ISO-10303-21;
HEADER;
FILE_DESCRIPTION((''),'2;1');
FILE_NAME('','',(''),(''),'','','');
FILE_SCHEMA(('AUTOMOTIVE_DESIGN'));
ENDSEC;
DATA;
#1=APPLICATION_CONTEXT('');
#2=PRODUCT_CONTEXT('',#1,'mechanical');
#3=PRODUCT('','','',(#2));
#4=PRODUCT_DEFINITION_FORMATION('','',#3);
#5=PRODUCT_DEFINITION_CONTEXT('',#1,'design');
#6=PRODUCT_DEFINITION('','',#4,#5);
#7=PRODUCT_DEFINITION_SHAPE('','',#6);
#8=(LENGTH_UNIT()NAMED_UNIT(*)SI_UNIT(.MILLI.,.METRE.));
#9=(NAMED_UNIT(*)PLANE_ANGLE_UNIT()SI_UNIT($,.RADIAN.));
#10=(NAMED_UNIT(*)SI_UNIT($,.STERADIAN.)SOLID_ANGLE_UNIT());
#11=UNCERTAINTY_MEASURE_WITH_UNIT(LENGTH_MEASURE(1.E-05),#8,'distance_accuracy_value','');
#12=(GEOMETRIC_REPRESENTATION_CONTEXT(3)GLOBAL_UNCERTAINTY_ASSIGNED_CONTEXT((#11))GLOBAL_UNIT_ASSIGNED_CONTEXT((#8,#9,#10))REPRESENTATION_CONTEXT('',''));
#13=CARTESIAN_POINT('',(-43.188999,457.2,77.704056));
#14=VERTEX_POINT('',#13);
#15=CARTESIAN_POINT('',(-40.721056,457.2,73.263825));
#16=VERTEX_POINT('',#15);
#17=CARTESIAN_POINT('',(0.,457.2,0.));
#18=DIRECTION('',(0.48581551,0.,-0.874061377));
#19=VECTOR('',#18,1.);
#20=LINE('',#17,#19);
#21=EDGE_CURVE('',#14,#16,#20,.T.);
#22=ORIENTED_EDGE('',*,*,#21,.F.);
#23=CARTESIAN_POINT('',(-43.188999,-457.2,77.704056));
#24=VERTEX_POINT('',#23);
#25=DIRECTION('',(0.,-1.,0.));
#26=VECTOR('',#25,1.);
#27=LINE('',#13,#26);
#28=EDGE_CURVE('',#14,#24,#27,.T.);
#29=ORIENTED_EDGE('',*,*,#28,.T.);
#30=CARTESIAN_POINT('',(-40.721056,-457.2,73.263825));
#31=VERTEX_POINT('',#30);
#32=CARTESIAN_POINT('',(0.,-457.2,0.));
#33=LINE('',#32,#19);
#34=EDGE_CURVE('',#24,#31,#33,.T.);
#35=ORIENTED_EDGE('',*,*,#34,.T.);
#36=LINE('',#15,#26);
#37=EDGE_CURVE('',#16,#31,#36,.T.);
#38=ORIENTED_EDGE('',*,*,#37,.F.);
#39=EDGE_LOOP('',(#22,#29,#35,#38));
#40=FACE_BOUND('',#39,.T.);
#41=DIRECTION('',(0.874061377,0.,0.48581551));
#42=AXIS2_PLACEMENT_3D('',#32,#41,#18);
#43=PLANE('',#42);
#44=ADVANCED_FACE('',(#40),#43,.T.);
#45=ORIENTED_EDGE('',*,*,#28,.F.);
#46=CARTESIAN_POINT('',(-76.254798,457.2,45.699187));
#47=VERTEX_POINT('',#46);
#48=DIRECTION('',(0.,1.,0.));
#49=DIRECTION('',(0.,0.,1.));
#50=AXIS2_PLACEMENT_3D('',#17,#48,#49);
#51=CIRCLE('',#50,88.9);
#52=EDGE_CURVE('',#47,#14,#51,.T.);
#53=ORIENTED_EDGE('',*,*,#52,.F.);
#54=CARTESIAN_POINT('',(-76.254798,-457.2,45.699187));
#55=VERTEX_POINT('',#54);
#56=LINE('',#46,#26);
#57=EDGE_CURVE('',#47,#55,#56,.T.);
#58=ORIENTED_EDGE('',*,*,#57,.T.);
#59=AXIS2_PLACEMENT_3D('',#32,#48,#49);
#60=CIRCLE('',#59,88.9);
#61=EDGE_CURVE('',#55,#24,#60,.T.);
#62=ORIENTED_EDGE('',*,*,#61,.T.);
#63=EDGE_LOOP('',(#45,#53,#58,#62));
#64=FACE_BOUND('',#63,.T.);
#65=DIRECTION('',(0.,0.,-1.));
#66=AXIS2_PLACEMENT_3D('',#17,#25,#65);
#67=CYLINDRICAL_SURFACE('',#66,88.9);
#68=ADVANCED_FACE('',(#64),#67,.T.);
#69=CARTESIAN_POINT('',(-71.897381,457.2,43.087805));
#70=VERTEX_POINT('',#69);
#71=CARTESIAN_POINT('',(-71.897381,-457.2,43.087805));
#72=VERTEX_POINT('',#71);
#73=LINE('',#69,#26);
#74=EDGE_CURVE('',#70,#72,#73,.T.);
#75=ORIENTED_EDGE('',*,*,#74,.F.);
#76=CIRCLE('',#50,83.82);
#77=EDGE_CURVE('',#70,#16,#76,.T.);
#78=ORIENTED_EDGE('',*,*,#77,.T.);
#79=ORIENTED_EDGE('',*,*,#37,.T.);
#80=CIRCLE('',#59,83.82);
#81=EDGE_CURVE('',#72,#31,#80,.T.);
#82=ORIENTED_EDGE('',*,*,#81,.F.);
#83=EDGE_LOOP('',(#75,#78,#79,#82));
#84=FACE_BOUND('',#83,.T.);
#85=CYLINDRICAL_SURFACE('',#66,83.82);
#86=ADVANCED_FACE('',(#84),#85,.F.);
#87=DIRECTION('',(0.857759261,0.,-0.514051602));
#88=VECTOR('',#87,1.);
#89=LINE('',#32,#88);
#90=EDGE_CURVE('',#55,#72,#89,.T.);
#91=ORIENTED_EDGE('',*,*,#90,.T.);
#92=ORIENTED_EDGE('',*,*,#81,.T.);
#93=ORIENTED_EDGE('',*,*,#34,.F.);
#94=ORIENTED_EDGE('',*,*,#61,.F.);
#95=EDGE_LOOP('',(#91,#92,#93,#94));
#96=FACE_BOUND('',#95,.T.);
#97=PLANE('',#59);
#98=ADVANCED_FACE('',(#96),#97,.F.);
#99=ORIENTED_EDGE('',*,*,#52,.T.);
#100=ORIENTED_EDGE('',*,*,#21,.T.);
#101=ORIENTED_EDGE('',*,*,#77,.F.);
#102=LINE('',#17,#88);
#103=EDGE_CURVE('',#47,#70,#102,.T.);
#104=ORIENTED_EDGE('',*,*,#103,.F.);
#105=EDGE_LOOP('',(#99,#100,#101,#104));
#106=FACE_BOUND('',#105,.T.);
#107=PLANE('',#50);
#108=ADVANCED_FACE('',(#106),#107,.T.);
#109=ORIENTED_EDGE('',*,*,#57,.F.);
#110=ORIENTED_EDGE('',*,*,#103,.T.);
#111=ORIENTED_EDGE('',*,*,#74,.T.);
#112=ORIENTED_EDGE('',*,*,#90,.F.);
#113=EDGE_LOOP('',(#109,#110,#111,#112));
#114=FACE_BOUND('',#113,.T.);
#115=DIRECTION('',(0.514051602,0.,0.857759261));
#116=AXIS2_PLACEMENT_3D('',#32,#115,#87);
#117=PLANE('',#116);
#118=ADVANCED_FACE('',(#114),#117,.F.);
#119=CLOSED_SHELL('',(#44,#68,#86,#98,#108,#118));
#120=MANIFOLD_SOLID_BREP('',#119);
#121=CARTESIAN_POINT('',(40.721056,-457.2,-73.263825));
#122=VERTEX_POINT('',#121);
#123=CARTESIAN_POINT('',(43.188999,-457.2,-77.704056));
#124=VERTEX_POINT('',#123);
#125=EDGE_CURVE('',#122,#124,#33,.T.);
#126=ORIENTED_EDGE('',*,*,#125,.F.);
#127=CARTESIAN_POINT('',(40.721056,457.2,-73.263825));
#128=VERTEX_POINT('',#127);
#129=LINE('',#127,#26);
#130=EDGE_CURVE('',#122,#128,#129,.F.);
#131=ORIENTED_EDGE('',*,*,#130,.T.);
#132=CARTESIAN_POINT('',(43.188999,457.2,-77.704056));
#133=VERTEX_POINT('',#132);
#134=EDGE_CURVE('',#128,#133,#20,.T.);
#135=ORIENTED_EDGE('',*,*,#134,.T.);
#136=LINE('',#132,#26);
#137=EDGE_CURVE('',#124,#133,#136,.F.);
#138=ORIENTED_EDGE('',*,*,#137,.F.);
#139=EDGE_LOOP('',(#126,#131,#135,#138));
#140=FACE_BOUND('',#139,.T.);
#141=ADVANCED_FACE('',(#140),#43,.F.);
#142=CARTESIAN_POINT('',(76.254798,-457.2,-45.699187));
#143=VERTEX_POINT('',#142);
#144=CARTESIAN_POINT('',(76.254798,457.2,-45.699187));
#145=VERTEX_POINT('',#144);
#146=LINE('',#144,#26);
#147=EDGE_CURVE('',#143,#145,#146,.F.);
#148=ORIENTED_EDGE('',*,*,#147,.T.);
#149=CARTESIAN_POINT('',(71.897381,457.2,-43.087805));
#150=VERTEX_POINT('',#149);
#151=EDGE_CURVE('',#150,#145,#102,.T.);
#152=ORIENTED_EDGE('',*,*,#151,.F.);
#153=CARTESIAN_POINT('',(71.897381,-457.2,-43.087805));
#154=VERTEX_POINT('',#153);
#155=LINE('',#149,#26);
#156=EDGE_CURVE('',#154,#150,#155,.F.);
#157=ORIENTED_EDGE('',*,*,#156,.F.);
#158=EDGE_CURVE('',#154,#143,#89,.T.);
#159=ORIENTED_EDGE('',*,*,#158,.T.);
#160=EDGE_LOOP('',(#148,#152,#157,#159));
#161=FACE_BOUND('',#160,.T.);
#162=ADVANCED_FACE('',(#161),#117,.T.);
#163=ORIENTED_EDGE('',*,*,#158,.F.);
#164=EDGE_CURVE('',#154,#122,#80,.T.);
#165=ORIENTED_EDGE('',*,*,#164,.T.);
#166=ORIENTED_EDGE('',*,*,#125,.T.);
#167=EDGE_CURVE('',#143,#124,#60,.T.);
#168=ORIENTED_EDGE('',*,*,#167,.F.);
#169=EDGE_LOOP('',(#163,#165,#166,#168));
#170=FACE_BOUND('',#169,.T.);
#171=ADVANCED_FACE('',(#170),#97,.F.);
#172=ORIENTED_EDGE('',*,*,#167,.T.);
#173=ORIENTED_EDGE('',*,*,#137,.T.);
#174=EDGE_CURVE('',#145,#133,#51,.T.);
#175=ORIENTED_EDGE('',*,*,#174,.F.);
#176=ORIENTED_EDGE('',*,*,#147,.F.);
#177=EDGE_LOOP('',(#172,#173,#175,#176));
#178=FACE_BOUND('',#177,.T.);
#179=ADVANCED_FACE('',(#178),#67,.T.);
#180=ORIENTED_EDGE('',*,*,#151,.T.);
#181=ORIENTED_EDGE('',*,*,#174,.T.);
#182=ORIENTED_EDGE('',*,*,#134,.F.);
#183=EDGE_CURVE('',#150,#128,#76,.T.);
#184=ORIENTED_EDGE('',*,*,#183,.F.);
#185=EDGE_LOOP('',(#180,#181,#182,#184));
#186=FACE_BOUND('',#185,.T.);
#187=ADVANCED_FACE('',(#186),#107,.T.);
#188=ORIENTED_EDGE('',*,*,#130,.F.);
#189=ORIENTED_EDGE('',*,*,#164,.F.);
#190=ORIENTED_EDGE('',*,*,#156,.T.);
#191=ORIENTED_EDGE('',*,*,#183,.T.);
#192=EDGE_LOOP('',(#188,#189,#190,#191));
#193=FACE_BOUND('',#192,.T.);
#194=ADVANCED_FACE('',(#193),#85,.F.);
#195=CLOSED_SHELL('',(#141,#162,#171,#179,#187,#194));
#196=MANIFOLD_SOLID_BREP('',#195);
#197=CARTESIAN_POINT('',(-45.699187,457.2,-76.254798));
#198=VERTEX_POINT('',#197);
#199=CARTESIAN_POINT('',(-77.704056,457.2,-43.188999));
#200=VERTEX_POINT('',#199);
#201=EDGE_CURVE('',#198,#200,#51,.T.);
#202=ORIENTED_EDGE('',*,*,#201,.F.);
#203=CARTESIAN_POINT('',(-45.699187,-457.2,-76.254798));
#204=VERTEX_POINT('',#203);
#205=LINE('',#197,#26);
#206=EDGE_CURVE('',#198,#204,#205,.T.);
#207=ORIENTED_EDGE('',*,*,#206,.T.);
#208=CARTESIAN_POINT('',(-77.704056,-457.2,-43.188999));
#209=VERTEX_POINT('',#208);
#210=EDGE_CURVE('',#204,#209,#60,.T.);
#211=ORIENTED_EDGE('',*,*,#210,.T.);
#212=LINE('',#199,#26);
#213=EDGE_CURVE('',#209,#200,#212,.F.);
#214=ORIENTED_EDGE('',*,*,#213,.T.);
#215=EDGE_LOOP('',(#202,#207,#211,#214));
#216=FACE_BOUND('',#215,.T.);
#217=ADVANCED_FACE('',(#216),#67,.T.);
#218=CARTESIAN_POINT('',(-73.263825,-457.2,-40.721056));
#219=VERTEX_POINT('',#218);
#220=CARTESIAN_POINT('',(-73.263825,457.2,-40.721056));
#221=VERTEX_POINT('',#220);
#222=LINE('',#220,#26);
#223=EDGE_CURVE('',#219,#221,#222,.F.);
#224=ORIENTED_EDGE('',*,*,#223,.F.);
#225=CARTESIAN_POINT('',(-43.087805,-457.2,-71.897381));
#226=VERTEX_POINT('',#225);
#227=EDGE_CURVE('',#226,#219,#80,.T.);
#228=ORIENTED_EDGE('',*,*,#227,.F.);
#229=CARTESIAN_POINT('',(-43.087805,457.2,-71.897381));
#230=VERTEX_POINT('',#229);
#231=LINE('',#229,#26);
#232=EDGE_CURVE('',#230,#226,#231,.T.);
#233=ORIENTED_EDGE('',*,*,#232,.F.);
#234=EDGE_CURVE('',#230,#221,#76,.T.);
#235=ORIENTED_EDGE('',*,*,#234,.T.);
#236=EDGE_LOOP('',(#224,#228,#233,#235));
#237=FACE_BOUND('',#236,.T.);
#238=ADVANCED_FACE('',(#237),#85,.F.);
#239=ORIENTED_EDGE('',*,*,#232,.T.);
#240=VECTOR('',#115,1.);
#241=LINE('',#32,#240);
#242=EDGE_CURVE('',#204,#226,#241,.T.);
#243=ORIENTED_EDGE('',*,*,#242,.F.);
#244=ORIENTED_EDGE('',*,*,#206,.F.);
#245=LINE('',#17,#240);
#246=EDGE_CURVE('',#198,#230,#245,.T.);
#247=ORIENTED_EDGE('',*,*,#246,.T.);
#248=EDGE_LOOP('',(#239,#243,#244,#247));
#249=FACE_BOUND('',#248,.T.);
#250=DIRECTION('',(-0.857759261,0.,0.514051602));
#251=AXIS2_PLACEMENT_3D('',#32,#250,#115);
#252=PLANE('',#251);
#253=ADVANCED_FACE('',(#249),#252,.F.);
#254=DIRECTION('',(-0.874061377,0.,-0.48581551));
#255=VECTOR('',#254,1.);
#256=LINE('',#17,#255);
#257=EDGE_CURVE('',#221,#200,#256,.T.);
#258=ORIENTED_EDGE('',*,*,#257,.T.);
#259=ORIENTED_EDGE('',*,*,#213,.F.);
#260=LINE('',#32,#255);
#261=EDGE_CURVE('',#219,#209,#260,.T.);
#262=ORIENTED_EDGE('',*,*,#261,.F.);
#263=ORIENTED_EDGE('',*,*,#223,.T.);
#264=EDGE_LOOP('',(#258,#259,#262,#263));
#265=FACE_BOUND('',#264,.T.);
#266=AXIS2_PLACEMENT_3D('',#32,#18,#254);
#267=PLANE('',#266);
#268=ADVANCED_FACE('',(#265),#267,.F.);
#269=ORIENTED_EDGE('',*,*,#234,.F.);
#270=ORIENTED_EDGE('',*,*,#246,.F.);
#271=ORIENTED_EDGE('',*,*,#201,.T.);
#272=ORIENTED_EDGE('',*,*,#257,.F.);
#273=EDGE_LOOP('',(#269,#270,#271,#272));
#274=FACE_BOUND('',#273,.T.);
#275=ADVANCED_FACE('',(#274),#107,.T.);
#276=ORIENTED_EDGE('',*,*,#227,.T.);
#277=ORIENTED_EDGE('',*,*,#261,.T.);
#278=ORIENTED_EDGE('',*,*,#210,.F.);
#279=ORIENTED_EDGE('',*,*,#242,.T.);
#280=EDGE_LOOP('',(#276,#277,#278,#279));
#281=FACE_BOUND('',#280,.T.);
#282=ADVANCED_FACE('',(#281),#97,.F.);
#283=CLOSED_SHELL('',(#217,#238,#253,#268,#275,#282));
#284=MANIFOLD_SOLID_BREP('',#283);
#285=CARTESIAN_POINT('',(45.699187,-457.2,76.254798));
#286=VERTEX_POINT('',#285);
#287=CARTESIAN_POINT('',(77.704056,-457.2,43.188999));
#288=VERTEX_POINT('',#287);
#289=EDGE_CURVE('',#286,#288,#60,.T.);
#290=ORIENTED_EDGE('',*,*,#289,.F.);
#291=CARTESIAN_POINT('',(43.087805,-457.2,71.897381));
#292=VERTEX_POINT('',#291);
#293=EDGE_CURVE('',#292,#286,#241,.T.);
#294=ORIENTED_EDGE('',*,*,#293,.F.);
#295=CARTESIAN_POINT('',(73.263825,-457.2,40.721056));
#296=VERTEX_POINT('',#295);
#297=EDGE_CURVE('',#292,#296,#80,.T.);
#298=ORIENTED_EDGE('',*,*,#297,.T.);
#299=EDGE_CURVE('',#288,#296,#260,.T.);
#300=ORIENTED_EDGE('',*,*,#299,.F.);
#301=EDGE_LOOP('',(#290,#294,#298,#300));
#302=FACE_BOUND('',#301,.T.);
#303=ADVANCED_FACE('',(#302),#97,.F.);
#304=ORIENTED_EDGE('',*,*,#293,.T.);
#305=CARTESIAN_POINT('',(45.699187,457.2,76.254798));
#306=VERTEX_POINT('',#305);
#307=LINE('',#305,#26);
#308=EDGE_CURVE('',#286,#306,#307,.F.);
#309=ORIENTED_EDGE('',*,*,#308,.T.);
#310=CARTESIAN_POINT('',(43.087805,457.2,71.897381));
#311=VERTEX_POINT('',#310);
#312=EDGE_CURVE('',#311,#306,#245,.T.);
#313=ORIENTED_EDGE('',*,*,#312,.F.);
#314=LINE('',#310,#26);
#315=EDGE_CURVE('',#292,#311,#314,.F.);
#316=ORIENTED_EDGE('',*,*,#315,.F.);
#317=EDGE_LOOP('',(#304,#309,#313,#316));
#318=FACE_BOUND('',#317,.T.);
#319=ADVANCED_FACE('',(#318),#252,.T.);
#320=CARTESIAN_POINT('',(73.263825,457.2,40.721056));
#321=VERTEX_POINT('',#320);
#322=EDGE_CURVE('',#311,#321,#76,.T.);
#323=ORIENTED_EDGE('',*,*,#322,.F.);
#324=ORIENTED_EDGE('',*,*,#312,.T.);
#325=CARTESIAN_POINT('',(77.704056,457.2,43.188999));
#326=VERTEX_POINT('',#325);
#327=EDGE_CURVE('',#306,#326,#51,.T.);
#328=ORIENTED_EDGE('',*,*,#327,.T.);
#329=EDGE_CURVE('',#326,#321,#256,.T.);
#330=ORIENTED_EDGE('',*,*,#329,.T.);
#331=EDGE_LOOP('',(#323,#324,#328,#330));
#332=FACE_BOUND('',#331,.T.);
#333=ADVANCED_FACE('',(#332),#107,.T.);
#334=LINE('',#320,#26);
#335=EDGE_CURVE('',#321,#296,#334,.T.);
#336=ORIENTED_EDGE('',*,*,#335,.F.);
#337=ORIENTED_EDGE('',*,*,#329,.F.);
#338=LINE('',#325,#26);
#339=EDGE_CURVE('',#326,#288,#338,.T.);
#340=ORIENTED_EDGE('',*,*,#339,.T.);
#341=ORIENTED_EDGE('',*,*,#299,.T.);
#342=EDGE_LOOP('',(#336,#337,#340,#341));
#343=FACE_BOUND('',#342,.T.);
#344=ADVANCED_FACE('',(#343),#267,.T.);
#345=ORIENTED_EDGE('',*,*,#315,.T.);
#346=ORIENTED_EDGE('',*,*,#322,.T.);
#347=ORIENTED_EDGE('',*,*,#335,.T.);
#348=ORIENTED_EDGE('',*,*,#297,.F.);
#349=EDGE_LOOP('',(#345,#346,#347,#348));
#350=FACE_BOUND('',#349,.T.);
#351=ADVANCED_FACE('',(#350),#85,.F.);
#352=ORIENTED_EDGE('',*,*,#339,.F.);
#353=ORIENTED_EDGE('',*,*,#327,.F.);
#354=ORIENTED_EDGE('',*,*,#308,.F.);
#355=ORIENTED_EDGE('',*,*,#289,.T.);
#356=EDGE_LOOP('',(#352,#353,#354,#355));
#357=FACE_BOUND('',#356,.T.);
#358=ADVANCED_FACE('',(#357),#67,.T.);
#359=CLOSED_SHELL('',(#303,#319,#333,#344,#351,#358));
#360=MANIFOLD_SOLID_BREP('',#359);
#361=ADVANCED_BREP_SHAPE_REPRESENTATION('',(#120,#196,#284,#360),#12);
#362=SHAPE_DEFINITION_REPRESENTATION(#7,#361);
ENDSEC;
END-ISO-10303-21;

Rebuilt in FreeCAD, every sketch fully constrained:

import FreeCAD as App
import Part
import Sketcher

V = App.Vector
Q = App.Units.Quantity

doc = App.newDocument("Part")
body = doc.addObject("PartDesign::Body", "Body")
body.AllowCompound = True

sketch1 = body.newObject("Sketcher::SketchObject", "Sketch")
sketch1.AttachmentSupport = (doc.getObject("XZ_Plane"), [""])
sketch1.MapMode = "FlatFace"
sketch1.addGeometry([
    Part.Circle(V(0, 0, 0), V(0, 0, 1), 89),
    Part.Circle(V(0, 0, 0), V(0, 0, 1), 84),
], False)
sketch1.addConstraint([
    Sketcher.Constraint("Coincident", 0, 3, -1, 1),
    Sketcher.Constraint("Coincident", 1, 3, -1, 1),
    Sketcher.Constraint("Diameter", 0, Q("7 in")),
    Sketcher.Constraint("Diameter", 1, Q("6.6 in")),
])
pad1 = body.newObject("PartDesign::Pad", "Pad")
pad1.Profile = sketch1
pad1.Length = Q("36 in")
pad1.Midplane = True

sketch2 = body.newObject("Sketcher::SketchObject", "Sketch001")
sketch2.AttachmentSupport = (doc.getObject("XZ_Plane"), [""])
sketch2.MapMode = "FlatFace"
sketch2.addGeometry([
    Part.LineSegment(V(0, 0, 0), V(170, 94, 0)),
    Part.LineSegment(V(170, 94, 0), V(170, -102, 0)),
    Part.LineSegment(V(170, -102, 0), V(0, 0, 0)),
    Part.LineSegment(V(0, 0, 0), V(54, -97, 0)),
    Part.LineSegment(V(54, -97, 0), V(-58, -97, 0)),
    Part.LineSegment(V(-58, -97, 0), V(0, 0, 0)),
    Part.LineSegment(V(-124, -69, 0), V(-124, 74, 0)),
    Part.LineSegment(V(-124, 74, 0), V(0, 0, 0)),
    Part.LineSegment(V(0, 0, 0), V(-124, -69, 0)),
    Part.LineSegment(V(0, 0, 0), V(-66, 118, 0)),
    Part.LineSegment(V(-66, 118, 0), V(71, 118, 0)),
    Part.LineSegment(V(71, 118, 0), V(0, 0, 0)),
], False)
sketch2.addConstraint([
    Sketcher.Constraint("Coincident", 0, 2, 1, 1),
    Sketcher.Constraint("Coincident", 1, 2, 2, 1),
    Sketcher.Constraint("Coincident", 2, 2, 0, 1),
    Sketcher.Constraint("Coincident", 3, 2, 4, 1),
    Sketcher.Constraint("Coincident", 4, 2, 5, 1),
    Sketcher.Constraint("Coincident", 5, 2, 3, 1),
    Sketcher.Constraint("Coincident", 6, 2, 7, 1),
    Sketcher.Constraint("Coincident", 7, 2, 8, 1),
    Sketcher.Constraint("Coincident", 8, 2, 6, 1),
    Sketcher.Constraint("Coincident", 9, 2, 10, 1),
    Sketcher.Constraint("Coincident", 10, 2, 11, 1),
    Sketcher.Constraint("Coincident", 11, 2, 9, 1),
    Sketcher.Constraint("Vertical", 1),
    Sketcher.Constraint("Horizontal", 4),
    Sketcher.Constraint("Vertical", 6),
    Sketcher.Constraint("Horizontal", 10),
    Sketcher.Constraint("Coincident", 2, 2, -1, 1),
    Sketcher.Constraint("Coincident", 5, 2, -1, 1),
    Sketcher.Constraint("Coincident", 7, 2, -1, 1),
    Sketcher.Constraint("Coincident", 11, 2, -1, 1),
    Sketcher.Constraint("Perpendicular", 0, 3),
    Sketcher.Constraint("Perpendicular", 2, 5),
    Sketcher.Constraint("Perpendicular", 5, 7),
    Sketcher.Constraint("Perpendicular", 3, 8),
    Sketcher.Constraint("Perpendicular", 8, 9),
    Sketcher.Constraint("Perpendicular", 7, 11),
    Sketcher.Constraint("DistanceX", 10, 1, 10, 2, 136.832681),
    Sketcher.Constraint("DistanceX", 6, 2, -1, 1, 123.7413),
    Sketcher.Constraint("Distance", 0, 194.107371),
    Sketcher.Constraint("Distance", 11, 138.102371),
    Sketcher.Constraint("DistanceX", 4, 2, 4, 1, 112.016713),
    Sketcher.Constraint("DistanceY", 1, 2, 1, 1, 195.977965),
])
pocket1 = body.newObject("PartDesign::Pocket", "Pocket")
pocket1.Profile = sketch2
pocket1.Type = "ThroughAll"
pocket1.Midplane = True

doc.recompute()
